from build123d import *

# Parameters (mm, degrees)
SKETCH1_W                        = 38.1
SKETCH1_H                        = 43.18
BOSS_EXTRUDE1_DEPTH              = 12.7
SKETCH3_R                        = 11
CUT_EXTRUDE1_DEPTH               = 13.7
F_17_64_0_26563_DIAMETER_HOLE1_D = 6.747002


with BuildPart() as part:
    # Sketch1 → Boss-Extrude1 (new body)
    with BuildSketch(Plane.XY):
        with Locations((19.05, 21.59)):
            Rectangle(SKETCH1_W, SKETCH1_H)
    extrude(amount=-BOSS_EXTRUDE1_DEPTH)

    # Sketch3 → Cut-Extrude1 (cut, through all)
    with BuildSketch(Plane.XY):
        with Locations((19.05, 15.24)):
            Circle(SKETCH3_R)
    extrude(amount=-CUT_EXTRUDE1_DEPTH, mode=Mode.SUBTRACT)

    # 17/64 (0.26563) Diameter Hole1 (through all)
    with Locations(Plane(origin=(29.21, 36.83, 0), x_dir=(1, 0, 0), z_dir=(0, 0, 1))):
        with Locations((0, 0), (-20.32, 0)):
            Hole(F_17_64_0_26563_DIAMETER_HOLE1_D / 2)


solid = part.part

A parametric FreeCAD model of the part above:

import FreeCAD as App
import Part
import Sketcher

V = App.Vector
Q = App.Units.Quantity

doc = App.newDocument("Part")
body = doc.addObject("PartDesign::Body", "Body")

sketch1 = doc.addObject("Sketcher::SketchObject", "Sketch")
body.addObject(sketch1)
sketch1.AttachmentSupport = (doc.XY_Plane, [""])
sketch1.MapMode = "FlatFace"
sketch1.addGeometry([
    Part.LineSegment(V(0, 43, 0), V(0, 0, 0)),
    Part.LineSegment(V(0, 0, 0), V(38, 0, 0)),
    Part.LineSegment(V(38, 0, 0), V(38, 43, 0)),
    Part.LineSegment(V(38, 43, 0), V(0, 43, 0)),
], False)
sketch1.addConstraint([
    Sketcher.Constraint("Coincident", 0, 2, 1, 1),
    Sketcher.Constraint("Coincident", 1, 2, 2, 1),
    Sketcher.Constraint("Coincident", 2, 2, 3, 1),
    Sketcher.Constraint("Coincident", 3, 2, 0, 1),
    Sketcher.Constraint("Vertical", 0),
    Sketcher.Constraint("Horizontal", 1),
    Sketcher.Constraint("Vertical", 2),
    Sketcher.Constraint("Horizontal", 3),
    Sketcher.Constraint("Coincident", 0, 2, -1, 1),
    Sketcher.Constraint("DistanceX", 1, 1, 1, 2, Q("1.5 in")),
    Sketcher.Constraint("DistanceY", 0, 2, 0, 1, Q("1.7 in")),
])
pad1 = doc.addObject("PartDesign::Pad", "Pad")
body.addObject(pad1)
pad1.Profile = sketch1
pad1.Length = Q("0.5 in")
pad1.Reversed = True

sketch2 = doc.addObject("Sketcher::SketchObject", "Sketch001")
body.addObject(sketch2)
sketch2.AttachmentSupport = (doc.XY_Plane, [""])
sketch2.MapMode = "FlatFace"
sketch2.addGeometry(Part.Circle(V(19, 15, 0), V(0, 0, 1), 11), False)
sketch2.addConstraint([
    Sketcher.Constraint("DistanceY", -1, 1, 0, 3, Q("0.6 in")),
    Sketcher.Constraint("Diameter", 0, 22.0),
    Sketcher.Constraint("DistanceX", -1, 1, 0, 3, Q("0.75 in")),
])
pocket1 = doc.addObject("PartDesign::Pocket", "Pocket")
body.addObject(pocket1)
pocket1.Profile = sketch2
pocket1.Type = "ThroughAll"

sketch3 = doc.addObject("Sketcher::SketchObject", "Sketch002")
body.addObject(sketch3)
sketch3.AttachmentSupport = (doc.XY_Plane, [""])
sketch3.MapMode = "FlatFace"
sketch3.addGeometry([
    Part.Circle(V(29.2, 36.8, 0), V(0, 0, 1), 3.4),
    Part.Circle(V(8.9, 36.8, 0), V(0, 0, 1), 3.4),
], False)
sketch3.addConstraint([
    Sketcher.Constraint("Equal", 0, 1),
    Sketcher.Constraint("Horizontal", 0, 3, 1, 3),
    Sketcher.Constraint("DistanceX", 1, 3, 0, 3, Q("0.8 in")),
    Sketcher.Constraint("DistanceX", -1, 1, 0, 3, Q("1.15 in")),
    Sketcher.Constraint("DistanceY", -1, 1, 0, 3, Q("1.45 in")),
    Sketcher.Constraint("Diameter", 0, 6.747002),
])
doc.recompute()
hole = doc.addObject("PartDesign::Hole", "Hole")
body.addObject(hole)
hole.Profile = sketch3
hole.ThreadType = "None"
hole.Diameter = 6.747002
hole.DepthType = "ThroughAll"

doc.recompute()
